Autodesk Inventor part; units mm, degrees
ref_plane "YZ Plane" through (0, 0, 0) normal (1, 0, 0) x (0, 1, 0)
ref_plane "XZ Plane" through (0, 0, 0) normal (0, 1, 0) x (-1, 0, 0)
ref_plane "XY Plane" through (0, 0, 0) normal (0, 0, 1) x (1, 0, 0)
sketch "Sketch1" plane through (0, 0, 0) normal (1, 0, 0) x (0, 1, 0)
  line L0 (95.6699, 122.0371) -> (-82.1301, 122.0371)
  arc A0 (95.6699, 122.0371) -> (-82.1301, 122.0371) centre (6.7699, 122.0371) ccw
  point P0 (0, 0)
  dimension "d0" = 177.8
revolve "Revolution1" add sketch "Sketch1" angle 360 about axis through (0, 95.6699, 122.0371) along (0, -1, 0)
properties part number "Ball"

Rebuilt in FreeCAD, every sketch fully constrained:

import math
import FreeCAD as App
import Part
import Sketcher
from FreeCAD import Vector
Q = App.Units.Quantity

doc = App.newDocument("Part")
body = doc.addObject("PartDesign::Body", "Body")

sketch1 = body.newObject("Sketcher::SketchObject", "Sketch")
sketch1.AttachmentSupport = (doc.getObject("YZ_Plane"), [""])
sketch1.MapMode = "FlatFace"
sketch1.addGeometry([
    Part.LineSegment(Vector(-82, 122, 0), Vector(96, 122, 0)),
    Part.ArcOfCircle(Part.Circle(Vector(7, 122, 0), Vector(0, 0, 1), 89), math.radians(0), math.radians(180)),
], False)
sketch1.addGeometry(Part.LineSegment(Vector(96, 122, 0), Vector(-82, 122, 0)), True)
sketch1.addConstraint([
    Sketcher.Constraint("Coincident", 0, 1, 1, 2),
    Sketcher.Constraint("Coincident", 1, 1, 0, 2),
    Sketcher.Constraint("Horizontal", 0),
    Sketcher.Constraint("Horizontal", 2),
    Sketcher.Constraint("Coincident", 2, 1, 1, 1),
    Sketcher.Constraint("Horizontal", 1, 3, 0, 1),
    Sketcher.Constraint("Equal", 0, 2),
    Sketcher.Constraint("Radius", 1, Q("3.5 in")),
    Sketcher.Constraint("DistanceY", -1, 1, 1, 3, Q("4.8046 in")),
    Sketcher.Constraint("DistanceX", -1, 1, 1, 3, 6.77),
])
revolution = body.newObject("PartDesign::Revolution", "Revolution")
revolution.Profile = sketch1
revolution.ReferenceAxis = (sketch1, ["Axis0"])
revolution.Angle = 360

doc.recompute()
